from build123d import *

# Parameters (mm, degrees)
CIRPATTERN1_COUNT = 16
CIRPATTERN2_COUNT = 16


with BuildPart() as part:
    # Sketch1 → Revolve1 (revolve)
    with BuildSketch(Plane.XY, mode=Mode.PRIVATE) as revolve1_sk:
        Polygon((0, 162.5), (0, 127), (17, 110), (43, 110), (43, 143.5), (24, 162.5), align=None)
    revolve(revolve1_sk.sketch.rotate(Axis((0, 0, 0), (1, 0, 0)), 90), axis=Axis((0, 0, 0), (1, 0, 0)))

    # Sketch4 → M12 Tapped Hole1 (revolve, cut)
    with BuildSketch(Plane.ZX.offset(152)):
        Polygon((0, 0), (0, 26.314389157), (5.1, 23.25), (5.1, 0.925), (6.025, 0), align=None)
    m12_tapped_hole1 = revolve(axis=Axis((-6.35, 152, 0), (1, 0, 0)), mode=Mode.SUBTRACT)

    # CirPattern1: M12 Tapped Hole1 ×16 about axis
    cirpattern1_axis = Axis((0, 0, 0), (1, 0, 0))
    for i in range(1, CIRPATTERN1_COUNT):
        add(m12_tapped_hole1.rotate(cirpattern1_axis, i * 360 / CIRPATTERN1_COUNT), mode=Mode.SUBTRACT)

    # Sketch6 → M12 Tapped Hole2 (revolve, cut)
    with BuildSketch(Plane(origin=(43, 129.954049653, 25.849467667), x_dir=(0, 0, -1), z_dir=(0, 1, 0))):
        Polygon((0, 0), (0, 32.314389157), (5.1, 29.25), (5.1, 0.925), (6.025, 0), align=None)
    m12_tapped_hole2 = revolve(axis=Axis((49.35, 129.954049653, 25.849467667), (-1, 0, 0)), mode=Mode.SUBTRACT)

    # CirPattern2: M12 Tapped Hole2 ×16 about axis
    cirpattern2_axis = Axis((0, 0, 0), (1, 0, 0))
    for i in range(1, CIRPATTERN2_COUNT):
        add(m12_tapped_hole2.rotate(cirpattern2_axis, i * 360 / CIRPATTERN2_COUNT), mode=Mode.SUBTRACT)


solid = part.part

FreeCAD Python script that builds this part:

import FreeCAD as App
import Part
import Sketcher
from FreeCAD import Vector
Q = App.Units.Quantity


def add_polygon(sketch, points):
    """Adds a closed chain of lines whose ends are joined by coincident constraints."""
    first, n = sketch.GeometryCount, len(points)
    for a, b in zip(points, points[1:] + points[:1]):
        sketch.addGeometry(Part.LineSegment(App.Vector(*a, 0), App.Vector(*b, 0)), False)
    for i in range(n):
        sketch.addConstraint(Sketcher.Constraint("Coincident", first + i, 2, first + (i + 1) % n, 1))

doc = App.newDocument("Part")
body = doc.addObject("PartDesign::Body", "Body")

sketch1 = body.newObject("Sketcher::SketchObject", "Sketch")
sketch1.AttachmentSupport = (doc.getObject("XY_Plane"), [""])
sketch1.MapMode = "FlatFace"
add_polygon(sketch1, [(0, 162.5), (0, 127), (17, 110), (43, 110), (43, 143.5), (24, 162.5)])
sketch1.addConstraint([
    Sketcher.Constraint("Vertical", 0),
    Sketcher.Constraint("Horizontal", 2),
    Sketcher.Constraint("Vertical", 3),
    Sketcher.Constraint("Horizontal", 5),
    Sketcher.Constraint("PointOnObject", 0, 2, -2),
    Sketcher.Constraint("Parallel", 1, 4),
    Sketcher.Constraint("DistanceX", 2, 1, 2, 2, 26.0),
    Sketcher.Constraint("DistanceX", 5, 2, 5, 1, 24.0),
    Sketcher.Constraint("Angle", 1, Q("-45 deg")),
    Sketcher.Constraint("DistanceY", 0, 2, 0, 1, 35.5),
    Sketcher.Constraint("DistanceY", -1, 1, 0, 2, 127.0),
    Sketcher.Constraint("DistanceX", -1, 1, 1, 2, 17.0),
])
revolution = body.newObject("PartDesign::Revolution", "Revolution")
revolution.Profile = sketch1
revolution.ReferenceAxis = (sketch1, ["H_Axis"])
revolution.Angle = 360

sketch2 = body.newObject("Sketcher::SketchObject", "Sketch001")
sketch2.AttachmentSupport = (doc.getObject("XZ_Plane"), [""])
sketch2.MapMode = "FlatFace"
sketch2.AttachmentOffset = App.Placement(Vector(0, 0, -152), App.Rotation())
add_polygon(sketch2, [(26.314389, 0), (0, 0), (0, 6.025), (0.925, 5.1), (23.25, 5.1)])
sketch2.addConstraint([
    Sketcher.Constraint("Horizontal", 0),
    Sketcher.Constraint("Vertical", 1),
    Sketcher.Constraint("Horizontal", 3),
    Sketcher.Constraint("Coincident", 0, 2, -1, 1),
    Sketcher.Constraint("Angle", 2, Q("-45 deg")),
    Sketcher.Constraint("Angle", 4, Q("-59 deg")),
    Sketcher.Constraint("DistanceY", -1, 1, 2, 2, 5.1),
    Sketcher.Constraint("DistanceX", 3, 1, 3, 2, 22.325),
    Sketcher.Constraint("DistanceY", 1, 1, 1, 2, 6.025),
])
groove = body.newObject("PartDesign::Groove", "Groove")
groove.Profile = sketch2
groove.ReferenceAxis = (sketch2, ["H_Axis"])
groove.Angle = 360
doc.recompute()

polarpattern = body.newObject("PartDesign::PolarPattern", "PolarPattern")
polarpattern.Originals = [groove]
polarpattern.Axis = (doc.getObject("X_Axis"), [""])
polarpattern.Angle = 360
polarpattern.Occurrences = 16
body.Tip = polarpattern

sketch3 = body.newObject("Sketcher::SketchObject", "Sketch002")
sketch3.AttachmentSupport = (doc.getObject("XZ_Plane"), [""])
sketch3.MapMode = "FlatFace"
sketch3.AttachmentOffset = App.Placement(Vector(0, 0, -129.95405), App.Rotation())
add_polygon(sketch3, [(10.685611, 25.849468), (43, 25.849468), (43, 19.824468), (42.075, 20.749468), (13.75, 20.749468)])
sketch3.addGeometry(Part.LineSegment(Vector(43, 25.849468, 0), Vector(10.685611, 25.849468, 0)), True)
sketch3.addConstraint([
    Sketcher.Constraint("Horizontal", 0),
    Sketcher.Constraint("Vertical", 1),
    Sketcher.Constraint("Horizontal", 3),
    Sketcher.Constraint("Horizontal", 5),
    Sketcher.Constraint("Coincident", 5, 1, 0, 2),
    Sketcher.Constraint("Equal", 0, 5),
    Sketcher.Constraint("Angle", 2, Q("135 deg")),
    Sketcher.Constraint("Angle", 4, Q("121 deg")),
    Sketcher.Constraint("DistanceX", -1, 1, 0, 2, 43.0),
    Sketcher.Constraint("DistanceY", 2, 2, 0, 2, 5.1),
    Sketcher.Constraint("DistanceX", 3, 2, 3, 1, 28.325),
    Sketcher.Constraint("DistanceY", 1, 2, 1, 1, 6.025),
    Sketcher.Constraint("DistanceY", -1, 1, 0, 2, 25.849468),
])
groove2 = body.newObject("PartDesign::Groove", "Groove001")
groove2.Profile = sketch3
groove2.ReferenceAxis = (sketch3, ["Axis0"])
groove2.Angle = 360
doc.recompute()

polarpattern2 = body.newObject("PartDesign::PolarPattern", "PolarPattern001")
polarpattern2.Originals = [groove2]
polarpattern2.Axis = (doc.getObject("X_Axis"), [""])
polarpattern2.Angle = 360
polarpattern2.Occurrences = 16
body.Tip = polarpattern2

doc.recompute()
